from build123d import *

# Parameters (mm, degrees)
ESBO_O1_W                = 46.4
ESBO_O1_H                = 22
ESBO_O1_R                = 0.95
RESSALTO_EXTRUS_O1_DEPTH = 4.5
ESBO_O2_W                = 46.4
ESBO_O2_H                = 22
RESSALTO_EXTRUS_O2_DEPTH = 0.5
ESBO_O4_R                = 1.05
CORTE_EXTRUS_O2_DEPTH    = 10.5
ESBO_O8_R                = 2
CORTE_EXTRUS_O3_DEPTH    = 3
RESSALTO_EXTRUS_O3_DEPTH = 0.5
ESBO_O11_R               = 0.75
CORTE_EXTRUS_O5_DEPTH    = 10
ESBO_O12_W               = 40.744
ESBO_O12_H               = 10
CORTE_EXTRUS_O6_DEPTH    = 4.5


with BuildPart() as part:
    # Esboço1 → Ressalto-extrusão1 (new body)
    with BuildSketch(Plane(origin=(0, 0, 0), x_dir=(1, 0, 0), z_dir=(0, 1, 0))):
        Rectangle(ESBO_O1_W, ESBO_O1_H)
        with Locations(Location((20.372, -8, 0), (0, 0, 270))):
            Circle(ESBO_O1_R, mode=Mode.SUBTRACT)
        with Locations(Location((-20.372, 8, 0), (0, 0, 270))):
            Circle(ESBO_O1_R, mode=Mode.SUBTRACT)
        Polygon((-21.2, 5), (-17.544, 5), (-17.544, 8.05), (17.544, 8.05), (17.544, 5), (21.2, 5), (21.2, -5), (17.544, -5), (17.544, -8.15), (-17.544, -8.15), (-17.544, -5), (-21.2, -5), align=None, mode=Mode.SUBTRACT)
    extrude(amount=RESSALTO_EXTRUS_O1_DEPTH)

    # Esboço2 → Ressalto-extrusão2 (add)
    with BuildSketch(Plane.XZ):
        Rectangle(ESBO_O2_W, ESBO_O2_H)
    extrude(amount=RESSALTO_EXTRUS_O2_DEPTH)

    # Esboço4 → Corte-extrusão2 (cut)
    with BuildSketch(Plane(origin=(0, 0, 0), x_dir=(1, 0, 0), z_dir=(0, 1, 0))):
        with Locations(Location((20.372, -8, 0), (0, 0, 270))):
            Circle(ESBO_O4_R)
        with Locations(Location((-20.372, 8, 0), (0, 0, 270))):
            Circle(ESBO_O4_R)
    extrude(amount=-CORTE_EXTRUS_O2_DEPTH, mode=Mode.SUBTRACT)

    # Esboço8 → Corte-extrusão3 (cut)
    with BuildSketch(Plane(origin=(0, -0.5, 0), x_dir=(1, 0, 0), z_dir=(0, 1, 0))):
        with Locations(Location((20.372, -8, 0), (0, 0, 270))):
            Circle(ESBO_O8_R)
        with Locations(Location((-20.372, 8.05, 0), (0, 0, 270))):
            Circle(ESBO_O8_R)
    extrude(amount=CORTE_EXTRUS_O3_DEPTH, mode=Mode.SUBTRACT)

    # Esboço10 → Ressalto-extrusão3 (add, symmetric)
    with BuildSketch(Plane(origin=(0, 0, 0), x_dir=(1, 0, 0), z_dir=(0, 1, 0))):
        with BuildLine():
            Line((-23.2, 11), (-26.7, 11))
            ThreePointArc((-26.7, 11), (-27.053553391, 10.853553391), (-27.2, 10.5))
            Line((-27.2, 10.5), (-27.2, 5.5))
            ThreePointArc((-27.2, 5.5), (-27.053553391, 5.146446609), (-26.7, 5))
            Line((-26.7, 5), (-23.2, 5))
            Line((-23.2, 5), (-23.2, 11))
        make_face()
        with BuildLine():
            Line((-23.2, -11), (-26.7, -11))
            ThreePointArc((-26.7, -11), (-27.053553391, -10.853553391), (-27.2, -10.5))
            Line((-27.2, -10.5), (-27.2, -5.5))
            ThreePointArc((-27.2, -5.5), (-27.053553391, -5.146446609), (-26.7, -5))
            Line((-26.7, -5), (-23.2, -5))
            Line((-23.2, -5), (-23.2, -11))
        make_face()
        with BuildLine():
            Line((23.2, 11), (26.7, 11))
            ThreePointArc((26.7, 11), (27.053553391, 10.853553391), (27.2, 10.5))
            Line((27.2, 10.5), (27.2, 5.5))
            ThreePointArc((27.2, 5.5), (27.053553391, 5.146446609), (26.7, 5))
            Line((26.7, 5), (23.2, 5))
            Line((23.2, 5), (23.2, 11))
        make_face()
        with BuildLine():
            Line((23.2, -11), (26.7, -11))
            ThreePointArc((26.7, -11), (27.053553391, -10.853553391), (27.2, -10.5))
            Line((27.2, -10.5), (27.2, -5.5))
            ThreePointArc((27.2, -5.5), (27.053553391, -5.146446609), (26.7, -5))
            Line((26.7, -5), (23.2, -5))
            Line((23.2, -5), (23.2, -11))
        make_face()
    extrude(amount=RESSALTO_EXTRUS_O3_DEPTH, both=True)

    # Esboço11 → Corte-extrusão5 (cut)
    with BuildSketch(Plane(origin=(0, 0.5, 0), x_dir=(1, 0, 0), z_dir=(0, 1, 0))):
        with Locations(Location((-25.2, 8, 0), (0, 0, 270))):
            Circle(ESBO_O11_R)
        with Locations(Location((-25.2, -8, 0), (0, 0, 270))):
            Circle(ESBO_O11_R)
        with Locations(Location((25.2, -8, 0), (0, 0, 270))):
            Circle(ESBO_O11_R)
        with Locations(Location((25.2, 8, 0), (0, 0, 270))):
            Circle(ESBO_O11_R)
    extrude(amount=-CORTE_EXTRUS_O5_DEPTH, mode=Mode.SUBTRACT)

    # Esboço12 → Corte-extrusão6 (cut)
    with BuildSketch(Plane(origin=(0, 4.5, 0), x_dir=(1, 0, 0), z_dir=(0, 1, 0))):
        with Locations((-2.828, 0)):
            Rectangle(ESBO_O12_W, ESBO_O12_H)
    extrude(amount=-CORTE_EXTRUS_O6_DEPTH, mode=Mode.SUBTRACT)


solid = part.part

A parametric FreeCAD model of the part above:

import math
import FreeCAD as App
import Part
import Sketcher
from FreeCAD import Vector


def add_polygon(sketch, points):
    """Adds a closed chain of lines whose ends are joined by coincident constraints."""
    first, n = sketch.GeometryCount, len(points)
    for a, b in zip(points, points[1:] + points[:1]):
        sketch.addGeometry(Part.LineSegment(App.Vector(*a, 0), App.Vector(*b, 0)), False)
    for i in range(n):
        sketch.addConstraint(Sketcher.Constraint("Coincident", first + i, 2, first + (i + 1) % n, 1))

doc = App.newDocument("Part")
params = doc.addObject("Spreadsheet::Sheet", "Params")
for row, (alias, value) in enumerate([
    ("sketch1_diameter", "1.9 mm"),
    ("sketch1_height", "22 mm"),
    ("sketch1_height2", "10 mm"),
    ("sketch1_width", "46.4 mm"),
    ("sketch1_height3", "3.05 mm"),
    ("pad1_length", "4.5 mm"),
    ("sketch2_height", "22 mm"),
    ("sketch2_width", "46.4 mm"),
    ("pad2_length", "0.5 mm"),
    ("sketch3_diameter", "2.1 mm"),
    ("pocket1_length", "10.5 mm"),
    ("sketch4_diameter", "4 mm"),
    ("pocket2_length", "3 mm"),
    ("sketch5_radius", "0.5 mm"),
    ("sketch5_height", "5 mm"),
    ("sketch5_width", "3.5 mm"),
    ("pad3_length", "1 mm"),
    ("sketch6_diameter", "1.5 mm"),
    ("pocket3_length", "10 mm"),
    ("sketch7_height", "10 mm"),
    ("pocket4_length", "4.5 mm"),
], start=1):
    params.set(f"A{row}", alias)
    params.set(f"B{row}", "=" + value)
    params.setAlias(f"B{row}", alias)

body = doc.addObject("PartDesign::Body", "Body")

sketch1 = body.newObject("Sketcher::SketchObject", "Sketch")
sketch1.AttachmentSupport = (doc.getObject("XZ_Plane"), [""])
sketch1.MapMode = "FlatFace"
add_polygon(sketch1, [(-23.2, -11), (-23.2, 11), (23.2, 11), (23.2, -11)])
add_polygon(sketch1, [(-21.2, 5), (-21.2, -5), (-17.5, -5), (-17.5, -8.1), (17.5, -8.1), (17.5, -5), (21.2, -5), (21.2, 5), (17.5, 5), (17.5, 8.2), (-17.5, 8.2), (-17.5, 5)])
sketch1.addGeometry(Part.Circle(Vector(20.4, 8, 0), Vector(0, 0, 1), 0.9), False)
sketch1.addGeometry(Part.Circle(Vector(-20.4, -8, 0), Vector(0, 0, 1), 0.9), False)
sketch1.addConstraint([
    Sketcher.Constraint("Vertical", 0),
    Sketcher.Constraint("Horizontal", 1),
    Sketcher.Constraint("Vertical", 2),
    Sketcher.Constraint("Horizontal", 3),
    Sketcher.Constraint("Vertical", 4),
    Sketcher.Constraint("Horizontal", 5),
    Sketcher.Constraint("Vertical", 6),
    Sketcher.Constraint("Horizontal", 7),
    Sketcher.Constraint("Vertical", 8),
    Sketcher.Constraint("Horizontal", 9),
    Sketcher.Constraint("Vertical", 10),
    Sketcher.Constraint("Horizontal", 11),
    Sketcher.Constraint("Vertical", 12),
    Sketcher.Constraint("Horizontal", 13),
    Sketcher.Constraint("Vertical", 14),
    Sketcher.Constraint("Horizontal", 15),
    Sketcher.Constraint("Equal", 16, 17),
    Sketcher.Constraint("Symmetric", 16, 3, 17, 3, -1, 1),
    Sketcher.Constraint("Symmetric", 0, 2, 2, 2, -1, 1),
    Sketcher.Constraint("Symmetric", 4, 2, 10, 2, -1, 1),
    Sketcher.Constraint("Symmetric", 8, 2, 14, 2, -1, 1),
    Sketcher.Constraint("Symmetric", 5, 2, 8, 2, -2),
    Sketcher.Constraint("Vertical", 8, 2, 11, 2),
    Sketcher.Constraint("Diameter", 16, 1.9),
    Sketcher.Constraint("DistanceY", 0, 1, 0, 2, 22.0),
    Sketcher.Constraint("DistanceY", 4, 2, 4, 1, 10.0),
    Sketcher.Constraint("DistanceX", 1, 1, 1, 2, 46.4),
    Sketcher.Constraint("DistanceY", -1, 1, 16, 3, 8.0),
    Sketcher.Constraint("DistanceX", 3, 2, 4, 2, 2.0),
    Sketcher.Constraint("DistanceY", 6, 2, 6, 1, 3.05),
    Sketcher.Constraint("DistanceY", 12, 1, 12, 2, 3.15),
    Sketcher.Constraint("DistanceX", 5, 1, 5, 2, 3.656),
    Sketcher.Constraint("DistanceX", -1, 1, 16, 3, 20.372),
])
sketch1.setExpression("Constraints[39]", "Params.sketch1_diameter")
sketch1.setExpression("Constraints[40]", "Params.sketch1_height")
sketch1.setExpression("Constraints[41]", "Params.sketch1_height2")
sketch1.setExpression("Constraints[42]", "Params.sketch1_width")
sketch1.setExpression("Constraints[45]", "Params.sketch1_height3")
pad1 = body.newObject("PartDesign::Pad", "Pad")
pad1.Profile = sketch1
pad1.setExpression("Length", "Params.pad1_length")
pad1.Reversed = True

sketch2 = body.newObject("Sketcher::SketchObject", "Sketch001")
sketch2.AttachmentSupport = (doc.getObject("XZ_Plane"), [""])
sketch2.MapMode = "FlatFace"
add_polygon(sketch2, [(-23, 11), (-23, -11), (23, -11), (23, 11)])
sketch2.addConstraint([
    Sketcher.Constraint("Vertical", 0),
    Sketcher.Constraint("Horizontal", 1),
    Sketcher.Constraint("Vertical", 2),
    Sketcher.Constraint("Horizontal", 3),
    Sketcher.Constraint("Symmetric", 0, 2, 2, 2, -1, 1),
    Sketcher.Constraint("DistanceY", 0, 2, 0, 1, 22.0),
    Sketcher.Constraint("DistanceX", 1, 1, 1, 2, 46.4),
])
sketch2.setExpression("Constraints[9]", "Params.sketch2_height")
sketch2.setExpression("Constraints[10]", "Params.sketch2_width")
pad2 = body.newObject("PartDesign::Pad", "Pad001")
pad2.Profile = sketch2
pad2.setExpression("Length", "Params.pad2_length")

sketch3 = body.newObject("Sketcher::SketchObject", "Sketch002")
sketch3.AttachmentSupport = (doc.getObject("XZ_Plane"), [""])
sketch3.MapMode = "FlatFace"
sketch3.addGeometry([
    Part.Circle(Vector(20.4, 8, 0), Vector(0, 0, 1), 1.1),
    Part.Circle(Vector(-20.4, -8, 0), Vector(0, 0, 1), 1.1),
], False)
sketch3.addConstraint([
    Sketcher.Constraint("Equal", 0, 1),
    Sketcher.Constraint("Symmetric", 0, 3, 1, 3, -1, 1),
    Sketcher.Constraint("Diameter", 0, 2.1),
    Sketcher.Constraint("DistanceY", -1, 1, 0, 3, 8.0),
    Sketcher.Constraint("DistanceX", -1, 1, 0, 3, 20.372),
])
sketch3.setExpression("Constraints[2]", "Params.sketch3_diameter")
pocket1 = body.newObject("PartDesign::Pocket", "Pocket")
pocket1.Profile = sketch3
pocket1.setExpression("Length", "Params.pocket1_length")
pocket1.Reversed = True

sketch4 = body.newObject("Sketcher::SketchObject", "Sketch003")
sketch4.AttachmentSupport = (doc.getObject("XZ_Plane"), [""])
sketch4.MapMode = "FlatFace"
sketch4.AttachmentOffset = App.Placement(Vector(0, 0, 0.5), App.Rotation())
sketch4.addGeometry([
    Part.Circle(Vector(20.4, 8, 0), Vector(0, 0, 1), 2),
    Part.Circle(Vector(-20.4, -8.1, 0), Vector(0, 0, 1), 2),
], False)
sketch4.addConstraint([
    Sketcher.Constraint("Equal", 0, 1),
    Sketcher.Constraint("Diameter", 0, 4.0),
    Sketcher.Constraint("DistanceY", -1, 1, 0, 3, 8.0),
    Sketcher.Constraint("DistanceY", 1, 3, -1, 1, 8.05),
    Sketcher.Constraint("DistanceX", -1, 1, 0, 3, 20.372),
    Sketcher.Constraint("DistanceX", 1, 3, -1, 1, 20.372),
])
sketch4.setExpression("Constraints[1]", "Params.sketch4_diameter")
pocket2 = body.newObject("PartDesign::Pocket", "Pocket001")
pocket2.Profile = sketch4
pocket2.setExpression("Length", "Params.pocket2_length")

sketch5 = body.newObject("Sketcher::SketchObject", "Sketch004")
sketch5.AttachmentSupport = (doc.getObject("XZ_Plane"), [""])
sketch5.MapMode = "FlatFace"
sketch5.addGeometry([
    Part.LineSegment(Vector(-23.2, -11, 0), Vector(-26.7, -11, 0)),
    Part.ArcOfCircle(Part.Circle(Vector(-26.7, -10.5, 0), Vector(0, 0, 1), 0.5), math.radians(180), math.radians(270)),
    Part.LineSegment(Vector(-27.2, -10.5, 0), Vector(-27.2, -5.5, 0)),
    Part.ArcOfCircle(Part.Circle(Vector(-26.7, -5.5, 0), Vector(0, 0, 1), 0.5), math.radians(90), math.radians(180)),
    Part.LineSegment(Vector(-26.7, -5, 0), Vector(-23.2, -5, 0)),
    Part.LineSegment(Vector(-23.2, -5, 0), Vector(-23.2, -11, 0)),
    Part.LineSegment(Vector(-26.7, 11, 0), Vector(-23.2, 11, 0)),
    Part.LineSegment(Vector(-23.2, 11, 0), Vector(-23.2, 5, 0)),
    Part.LineSegment(Vector(-23.2, 5, 0), Vector(-26.7, 5, 0)),
    Part.ArcOfCircle(Part.Circle(Vector(-26.7, 5.5, 0), Vector(0, 0, 1), 0.5), math.radians(180), math.radians(270)),
    Part.LineSegment(Vector(-27.2, 5.5, 0), Vector(-27.2, 10.5, 0)),
    Part.ArcOfCircle(Part.Circle(Vector(-26.7, 10.5, 0), Vector(0, 0, 1), 0.5), math.radians(90), math.radians(180)),
    Part.LineSegment(Vector(26.7, -11, 0), Vector(23.2, -11, 0)),
    Part.LineSegment(Vector(23.2, -11, 0), Vector(23.2, -5, 0)),
    Part.LineSegment(Vector(23.2, -5, 0), Vector(26.7, -5, 0)),
    Part.ArcOfCircle(Part.Circle(Vector(26.7, -5.5, 0), Vector(0, 0, 1), 0.5), math.radians(0), math.radians(90)),
    Part.LineSegment(Vector(27.2, -5.5, 0), Vector(27.2, -10.5, 0)),
    Part.ArcOfCircle(Part.Circle(Vector(26.7, -10.5, 0), Vector(0, 0, 1), 0.5), math.radians(-90), math.radians(0)),
    Part.LineSegment(Vector(23.2, 11, 0), Vector(26.7, 11, 0)),
    Part.ArcOfCircle(Part.Circle(Vector(26.7, 10.5, 0), Vector(0, 0, 1), 0.5), math.radians(0), math.radians(90)),
    Part.LineSegment(Vector(27.2, 10.5, 0), Vector(27.2, 5.5, 0)),
    Part.ArcOfCircle(Part.Circle(Vector(26.7, 5.5, 0), Vector(0, 0, 1), 0.5), math.radians(-90), math.radians(0)),
    Part.LineSegment(Vector(26.7, 5, 0), Vector(23.2, 5, 0)),
    Part.LineSegment(Vector(23.2, 5, 0), Vector(23.2, 11, 0)),
], False)
sketch5.addConstraint([
    Sketcher.Constraint("Tangent", 0, 2, 1, 2),
    Sketcher.Constraint("Tangent", 1, 1, 2, 1),
    Sketcher.Constraint("Tangent", 2, 2, 3, 2),
    Sketcher.Constraint("Tangent", 3, 1, 4, 1),
    Sketcher.Constraint("Coincident", 4, 2, 5, 1),
    Sketcher.Constraint("Coincident", 5, 2, 0, 1),
    Sketcher.Constraint("Coincident", 6, 2, 7, 1),
    Sketcher.Constraint("Coincident", 7, 2, 8, 1),
    Sketcher.Constraint("Tangent", 8, 2, 9, 2),
    Sketcher.Constraint("Tangent", 9, 1, 10, 1),
    Sketcher.Constraint("Tangent", 10, 2, 11, 2),
    Sketcher.Constraint("Tangent", 11, 1, 6, 1),
    Sketcher.Constraint("Coincident", 12, 2, 13, 1),
    Sketcher.Constraint("Coincident", 13, 2, 14, 1),
    Sketcher.Constraint("Tangent", 14, 2, 15, 2),
    Sketcher.Constraint("Tangent", 15, 1, 16, 1),
    Sketcher.Constraint("Tangent", 16, 2, 17, 2),
    Sketcher.Constraint("Tangent", 17, 1, 12, 1),
    Sketcher.Constraint("Tangent", 18, 2, 19, 2),
    Sketcher.Constraint("Tangent", 19, 1, 20, 1),
    Sketcher.Constraint("Tangent", 20, 2, 21, 2),
    Sketcher.Constraint("Tangent", 21, 1, 22, 1),
    Sketcher.Constraint("Coincident", 22, 2, 23, 1),
    Sketcher.Constraint("Coincident", 23, 2, 18, 1),
    Sketcher.Constraint("Horizontal", 0),
    Sketcher.Constraint("Vertical", 2),
    Sketcher.Constraint("Horizontal", 4),
    Sketcher.Constraint("Vertical", 5),
    Sketcher.Constraint("Horizontal", 6),
    Sketcher.Constraint("Vertical", 7),
    Sketcher.Constraint("Horizontal", 8),
    Sketcher.Constraint("Vertical", 10),
    Sketcher.Constraint("Horizontal", 12),
    Sketcher.Constraint("Vertical", 13),
    Sketcher.Constraint("Horizontal", 14),
    Sketcher.Constraint("Vertical", 16),
    Sketcher.Constraint("Horizontal", 18),
    Sketcher.Constraint("Vertical", 20),
    Sketcher.Constraint("Horizontal", 22),
    Sketcher.Constraint("Vertical", 23),
    Sketcher.Constraint("Equal", 1, 3),
    Sketcher.Constraint("Equal", 3, 9),
    Sketcher.Constraint("Equal", 9, 11),
    Sketcher.Constraint("Equal", 11, 15),
    Sketcher.Constraint("Equal", 15, 17),
    Sketcher.Constraint("Equal", 17, 19),
    Sketcher.Constraint("Equal", 19, 21),
    Sketcher.Constraint("Symmetric", 9, 3, 15, 3, -1, 1),
    Sketcher.Constraint("Symmetric", 1, 3, 19, 3, -1, 1),
    Sketcher.Constraint("Symmetric", 6, 2, 12, 2, -1, 1),
    Sketcher.Constraint("Symmetric", 4, 2, 22, 2, -1, 1),
    Sketcher.Constraint("Symmetric", 3, 3, 15, 3, -2),
    Sketcher.Constraint("Symmetric", 5, 2, 12, 2, -2),
    Sketcher.Constraint("Radius", 1, 0.5),
    Sketcher.Constraint("DistanceY", 2, 1, 2, 2, 5.0),
    Sketcher.Constraint("DistanceX", 0, 2, 0, 1, 3.5),
    Sketcher.Constraint("DistanceY", 0, 2, -1, 1, 11.0),
    Sketcher.Constraint("DistanceX", 1, 3, -1, 1, 26.7),
])
sketch5.setExpression("Constraints[53]", "Params.sketch5_radius")
sketch5.setExpression("Constraints[54]", "Params.sketch5_height")
sketch5.setExpression("Constraints[55]", "Params.sketch5_width")
pad3 = body.newObject("PartDesign::Pad", "Pad002")
pad3.Profile = sketch5
pad3.setExpression("Length", "Params.pad3_length")
pad3.Midplane = True

sketch6 = body.newObject("Sketcher::SketchObject", "Sketch005")
sketch6.AttachmentSupport = (doc.getObject("XZ_Plane"), [""])
sketch6.MapMode = "FlatFace"
sketch6.AttachmentOffset = App.Placement(Vector(0, 0, -0.5), App.Rotation())
sketch6.addGeometry([
    Part.Circle(Vector(-25.2, -8, 0), Vector(0, 0, 1), 0.8),
    Part.Circle(Vector(-25.2, 8, 0), Vector(0, 0, 1), 0.8),
    Part.Circle(Vector(25.2, 8, 0), Vector(0, 0, 1), 0.8),
    Part.Circle(Vector(25.2, -8, 0), Vector(0, 0, 1), 0.8),
], False)
sketch6.addConstraint([
    Sketcher.Constraint("Equal", 0, 1),
    Sketcher.Constraint("Equal", 1, 2),
    Sketcher.Constraint("Equal", 2, 3),
    Sketcher.Constraint("Symmetric", 0, 3, 2, 3, -1, 1),
    Sketcher.Constraint("Symmetric", 1, 3, 3, 3, -1, 1),
    Sketcher.Constraint("Symmetric", 1, 3, 2, 3, -2),
    Sketcher.Constraint("Diameter", 0, 1.5),
    Sketcher.Constraint("DistanceY", 0, 3, -1, 1, 8.0),
    Sketcher.Constraint("DistanceX", 0, 3, -1, 1, 25.2),
])
sketch6.setExpression("Constraints[6]", "Params.sketch6_diameter")
pocket3 = body.newObject("PartDesign::Pocket", "Pocket002")
pocket3.Profile = sketch6
pocket3.setExpression("Length", "Params.pocket3_length")
pocket3.Reversed = True

sketch7 = body.newObject("Sketcher::SketchObject", "Sketch006")
sketch7.AttachmentSupport = (doc.getObject("XZ_Plane"), [""])
sketch7.MapMode = "FlatFace"
sketch7.AttachmentOffset = App.Placement(Vector(0, 0, -4.5), App.Rotation())
add_polygon(sketch7, [(-23, -5), (-23, 5), (18, 5), (18, -5)])
sketch7.addConstraint([
    Sketcher.Constraint("Vertical", 0),
    Sketcher.Constraint("Horizontal", 1),
    Sketcher.Constraint("Vertical", 2),
    Sketcher.Constraint("Horizontal", 3),
    Sketcher.Constraint("DistanceY", 0, 1, 0, 2, 10.0),
    Sketcher.Constraint("DistanceY", -1, 1, 0, 2, 5.0),
    Sketcher.Constraint("DistanceX", 0, 2, -1, 1, 23.2),
    Sketcher.Constraint("DistanceX", 1, 1, 1, 2, 40.744),
])
sketch7.setExpression("Constraints[8]", "Params.sketch7_height")
pocket4 = body.newObject("PartDesign::Pocket", "Pocket003")
pocket4.Profile = sketch7
pocket4.setExpression("Length", "Params.pocket4_length")
pocket4.Reversed = True

doc.recompute()
